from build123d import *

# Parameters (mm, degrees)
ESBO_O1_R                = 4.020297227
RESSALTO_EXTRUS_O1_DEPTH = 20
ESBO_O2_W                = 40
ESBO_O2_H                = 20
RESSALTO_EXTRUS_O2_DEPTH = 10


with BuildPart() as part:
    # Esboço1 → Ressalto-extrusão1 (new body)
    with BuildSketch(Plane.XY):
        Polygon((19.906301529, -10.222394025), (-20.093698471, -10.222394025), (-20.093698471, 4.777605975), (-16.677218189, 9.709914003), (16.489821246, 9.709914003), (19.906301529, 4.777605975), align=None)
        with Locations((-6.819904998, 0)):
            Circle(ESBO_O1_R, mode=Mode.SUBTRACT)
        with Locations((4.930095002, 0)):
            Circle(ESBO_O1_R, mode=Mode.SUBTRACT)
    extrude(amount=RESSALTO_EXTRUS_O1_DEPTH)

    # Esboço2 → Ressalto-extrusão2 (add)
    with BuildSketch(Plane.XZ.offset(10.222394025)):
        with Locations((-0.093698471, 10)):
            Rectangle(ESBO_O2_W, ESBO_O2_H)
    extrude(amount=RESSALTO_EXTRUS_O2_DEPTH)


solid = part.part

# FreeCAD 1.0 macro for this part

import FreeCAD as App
import Part
import Sketcher

V = App.Vector

doc = App.newDocument("Part")
body = doc.addObject("PartDesign::Body", "Body")

# Sketch on XY plane
sketch1 = body.newObject("Sketcher::SketchObject", "Sketch")
sketch1.AttachmentSupport = (doc.getObject("XY_Plane"), [""])
sketch1.MapMode = "FlatFace"
sketch1.addGeometry([
    Part.LineSegment(V(-20.093698, -10.222394, 0), V(19.906302, -10.222394, 0)),  # 0
    Part.LineSegment(V(19.906302, -10.222394, 0), V(19.906302, 4.777606, 0)),  # 1
    Part.LineSegment(V(19.906302, 4.777606, 0), V(16.489821, 9.709914, 0)),  # 2
    Part.LineSegment(V(16.489821, 9.709914, 0), V(-16.677218, 9.709914, 0)),  # 3
    Part.LineSegment(V(-16.677218, 9.709914, 0), V(-20.093698, 4.777606, 0)),  # 4
    Part.LineSegment(V(-20.093698, 4.777606, 0), V(-20.093698, -10.222394, 0)),  # 5
    Part.Circle(V(4.930095, 0, 0), V(0, 0, 1), 4.020297),  # 6
    Part.Circle(V(-6.819905, 0, 0), V(0, 0, 1), 4.020297),  # 7
], False)
sketch1.addConstraint([
    Sketcher.Constraint("Coincident", 0, 2, 1, 1),
    Sketcher.Constraint("Coincident", 1, 2, 2, 1),
    Sketcher.Constraint("Coincident", 2, 2, 3, 1),
    Sketcher.Constraint("Coincident", 3, 2, 4, 1),
    Sketcher.Constraint("Coincident", 4, 2, 5, 1),
    Sketcher.Constraint("Coincident", 5, 2, 0, 1),
    Sketcher.Constraint("Horizontal", 0),
    Sketcher.Constraint("Vertical", 1),
    Sketcher.Constraint("Horizontal", 3),
    Sketcher.Constraint("Vertical", 5),
    Sketcher.Constraint("Equal", 6, 7),
    Sketcher.Constraint("PointOnObject", 6, 3, -1),
    Sketcher.Constraint("PointOnObject", 7, 3, -1),
    Sketcher.Constraint("Horizontal", 1, 2, 4, 2),
    Sketcher.Constraint("Equal", 2, 4),
    Sketcher.Constraint("DistanceX", 0, 1, 0, 2, 40.0),
    Sketcher.Constraint("DistanceY", 1, 1, 1, 2, 15.0),
    Sketcher.Constraint("Distance", 2, 6.0),
    Sketcher.Constraint("DistanceX", 7, 3, 6, 3, 11.75),
    Sketcher.Constraint("Diameter", 6, 8.040594),
    Sketcher.Constraint("DistanceX", 3, 2, 3, 1, 33.167039),
    Sketcher.Constraint("DistanceX", -1, 1, 0, 2, 19.906302),
    Sketcher.Constraint("DistanceX", -1, 1, 6, 3, 4.930095),
    Sketcher.Constraint("DistanceY", 0, 2, -1, 1, 10.222394),
])
pad1 = body.newObject("PartDesign::Pad", "Pad")
pad1.Profile = sketch1
pad1.Length = 20

# Sketch on XZ plane
sketch2 = body.newObject("Sketcher::SketchObject", "Sketch001")
sketch2.AttachmentSupport = (doc.getObject("XZ_Plane"), [""])
sketch2.MapMode = "FlatFace"
sketch2.AttachmentOffset = App.Placement(V(0, 0, 10.222394), App.Rotation())
sketch2.addGeometry([
    Part.LineSegment(V(-20.093698, 20, 0), V(-20.093698, 0, 0)),
    Part.LineSegment(V(-20.093698, 0, 0), V(19.906302, 0, 0)),
    Part.LineSegment(V(19.906302, 0, 0), V(19.906302, 20, 0)),
    Part.LineSegment(V(19.906302, 20, 0), V(-20.093698, 20, 0)),
], False)
sketch2.addConstraint([
    Sketcher.Constraint("Coincident", 0, 2, 1, 1),
    Sketcher.Constraint("Coincident", 1, 2, 2, 1),
    Sketcher.Constraint("Coincident", 2, 2, 3, 1),
    Sketcher.Constraint("Coincident", 3, 2, 0, 1),
    Sketcher.Constraint("Vertical", 0),
    Sketcher.Constraint("Horizontal", 1),
    Sketcher.Constraint("Vertical", 2),
    Sketcher.Constraint("Horizontal", 3),
    Sketcher.Constraint("PointOnObject", 0, 2, -1),
    Sketcher.Constraint("DistanceX", 1, 1, 1, 2, 40.0),
    Sketcher.Constraint("DistanceY", 0, 2, 0, 1, 20.0),
    Sketcher.Constraint("DistanceX", 0, 2, -1, 1, 20.093698),
])
pad2 = body.newObject("PartDesign::Pad", "Pad001")
pad2.Profile = sketch2
pad2.Length = 10

doc.recompute()
